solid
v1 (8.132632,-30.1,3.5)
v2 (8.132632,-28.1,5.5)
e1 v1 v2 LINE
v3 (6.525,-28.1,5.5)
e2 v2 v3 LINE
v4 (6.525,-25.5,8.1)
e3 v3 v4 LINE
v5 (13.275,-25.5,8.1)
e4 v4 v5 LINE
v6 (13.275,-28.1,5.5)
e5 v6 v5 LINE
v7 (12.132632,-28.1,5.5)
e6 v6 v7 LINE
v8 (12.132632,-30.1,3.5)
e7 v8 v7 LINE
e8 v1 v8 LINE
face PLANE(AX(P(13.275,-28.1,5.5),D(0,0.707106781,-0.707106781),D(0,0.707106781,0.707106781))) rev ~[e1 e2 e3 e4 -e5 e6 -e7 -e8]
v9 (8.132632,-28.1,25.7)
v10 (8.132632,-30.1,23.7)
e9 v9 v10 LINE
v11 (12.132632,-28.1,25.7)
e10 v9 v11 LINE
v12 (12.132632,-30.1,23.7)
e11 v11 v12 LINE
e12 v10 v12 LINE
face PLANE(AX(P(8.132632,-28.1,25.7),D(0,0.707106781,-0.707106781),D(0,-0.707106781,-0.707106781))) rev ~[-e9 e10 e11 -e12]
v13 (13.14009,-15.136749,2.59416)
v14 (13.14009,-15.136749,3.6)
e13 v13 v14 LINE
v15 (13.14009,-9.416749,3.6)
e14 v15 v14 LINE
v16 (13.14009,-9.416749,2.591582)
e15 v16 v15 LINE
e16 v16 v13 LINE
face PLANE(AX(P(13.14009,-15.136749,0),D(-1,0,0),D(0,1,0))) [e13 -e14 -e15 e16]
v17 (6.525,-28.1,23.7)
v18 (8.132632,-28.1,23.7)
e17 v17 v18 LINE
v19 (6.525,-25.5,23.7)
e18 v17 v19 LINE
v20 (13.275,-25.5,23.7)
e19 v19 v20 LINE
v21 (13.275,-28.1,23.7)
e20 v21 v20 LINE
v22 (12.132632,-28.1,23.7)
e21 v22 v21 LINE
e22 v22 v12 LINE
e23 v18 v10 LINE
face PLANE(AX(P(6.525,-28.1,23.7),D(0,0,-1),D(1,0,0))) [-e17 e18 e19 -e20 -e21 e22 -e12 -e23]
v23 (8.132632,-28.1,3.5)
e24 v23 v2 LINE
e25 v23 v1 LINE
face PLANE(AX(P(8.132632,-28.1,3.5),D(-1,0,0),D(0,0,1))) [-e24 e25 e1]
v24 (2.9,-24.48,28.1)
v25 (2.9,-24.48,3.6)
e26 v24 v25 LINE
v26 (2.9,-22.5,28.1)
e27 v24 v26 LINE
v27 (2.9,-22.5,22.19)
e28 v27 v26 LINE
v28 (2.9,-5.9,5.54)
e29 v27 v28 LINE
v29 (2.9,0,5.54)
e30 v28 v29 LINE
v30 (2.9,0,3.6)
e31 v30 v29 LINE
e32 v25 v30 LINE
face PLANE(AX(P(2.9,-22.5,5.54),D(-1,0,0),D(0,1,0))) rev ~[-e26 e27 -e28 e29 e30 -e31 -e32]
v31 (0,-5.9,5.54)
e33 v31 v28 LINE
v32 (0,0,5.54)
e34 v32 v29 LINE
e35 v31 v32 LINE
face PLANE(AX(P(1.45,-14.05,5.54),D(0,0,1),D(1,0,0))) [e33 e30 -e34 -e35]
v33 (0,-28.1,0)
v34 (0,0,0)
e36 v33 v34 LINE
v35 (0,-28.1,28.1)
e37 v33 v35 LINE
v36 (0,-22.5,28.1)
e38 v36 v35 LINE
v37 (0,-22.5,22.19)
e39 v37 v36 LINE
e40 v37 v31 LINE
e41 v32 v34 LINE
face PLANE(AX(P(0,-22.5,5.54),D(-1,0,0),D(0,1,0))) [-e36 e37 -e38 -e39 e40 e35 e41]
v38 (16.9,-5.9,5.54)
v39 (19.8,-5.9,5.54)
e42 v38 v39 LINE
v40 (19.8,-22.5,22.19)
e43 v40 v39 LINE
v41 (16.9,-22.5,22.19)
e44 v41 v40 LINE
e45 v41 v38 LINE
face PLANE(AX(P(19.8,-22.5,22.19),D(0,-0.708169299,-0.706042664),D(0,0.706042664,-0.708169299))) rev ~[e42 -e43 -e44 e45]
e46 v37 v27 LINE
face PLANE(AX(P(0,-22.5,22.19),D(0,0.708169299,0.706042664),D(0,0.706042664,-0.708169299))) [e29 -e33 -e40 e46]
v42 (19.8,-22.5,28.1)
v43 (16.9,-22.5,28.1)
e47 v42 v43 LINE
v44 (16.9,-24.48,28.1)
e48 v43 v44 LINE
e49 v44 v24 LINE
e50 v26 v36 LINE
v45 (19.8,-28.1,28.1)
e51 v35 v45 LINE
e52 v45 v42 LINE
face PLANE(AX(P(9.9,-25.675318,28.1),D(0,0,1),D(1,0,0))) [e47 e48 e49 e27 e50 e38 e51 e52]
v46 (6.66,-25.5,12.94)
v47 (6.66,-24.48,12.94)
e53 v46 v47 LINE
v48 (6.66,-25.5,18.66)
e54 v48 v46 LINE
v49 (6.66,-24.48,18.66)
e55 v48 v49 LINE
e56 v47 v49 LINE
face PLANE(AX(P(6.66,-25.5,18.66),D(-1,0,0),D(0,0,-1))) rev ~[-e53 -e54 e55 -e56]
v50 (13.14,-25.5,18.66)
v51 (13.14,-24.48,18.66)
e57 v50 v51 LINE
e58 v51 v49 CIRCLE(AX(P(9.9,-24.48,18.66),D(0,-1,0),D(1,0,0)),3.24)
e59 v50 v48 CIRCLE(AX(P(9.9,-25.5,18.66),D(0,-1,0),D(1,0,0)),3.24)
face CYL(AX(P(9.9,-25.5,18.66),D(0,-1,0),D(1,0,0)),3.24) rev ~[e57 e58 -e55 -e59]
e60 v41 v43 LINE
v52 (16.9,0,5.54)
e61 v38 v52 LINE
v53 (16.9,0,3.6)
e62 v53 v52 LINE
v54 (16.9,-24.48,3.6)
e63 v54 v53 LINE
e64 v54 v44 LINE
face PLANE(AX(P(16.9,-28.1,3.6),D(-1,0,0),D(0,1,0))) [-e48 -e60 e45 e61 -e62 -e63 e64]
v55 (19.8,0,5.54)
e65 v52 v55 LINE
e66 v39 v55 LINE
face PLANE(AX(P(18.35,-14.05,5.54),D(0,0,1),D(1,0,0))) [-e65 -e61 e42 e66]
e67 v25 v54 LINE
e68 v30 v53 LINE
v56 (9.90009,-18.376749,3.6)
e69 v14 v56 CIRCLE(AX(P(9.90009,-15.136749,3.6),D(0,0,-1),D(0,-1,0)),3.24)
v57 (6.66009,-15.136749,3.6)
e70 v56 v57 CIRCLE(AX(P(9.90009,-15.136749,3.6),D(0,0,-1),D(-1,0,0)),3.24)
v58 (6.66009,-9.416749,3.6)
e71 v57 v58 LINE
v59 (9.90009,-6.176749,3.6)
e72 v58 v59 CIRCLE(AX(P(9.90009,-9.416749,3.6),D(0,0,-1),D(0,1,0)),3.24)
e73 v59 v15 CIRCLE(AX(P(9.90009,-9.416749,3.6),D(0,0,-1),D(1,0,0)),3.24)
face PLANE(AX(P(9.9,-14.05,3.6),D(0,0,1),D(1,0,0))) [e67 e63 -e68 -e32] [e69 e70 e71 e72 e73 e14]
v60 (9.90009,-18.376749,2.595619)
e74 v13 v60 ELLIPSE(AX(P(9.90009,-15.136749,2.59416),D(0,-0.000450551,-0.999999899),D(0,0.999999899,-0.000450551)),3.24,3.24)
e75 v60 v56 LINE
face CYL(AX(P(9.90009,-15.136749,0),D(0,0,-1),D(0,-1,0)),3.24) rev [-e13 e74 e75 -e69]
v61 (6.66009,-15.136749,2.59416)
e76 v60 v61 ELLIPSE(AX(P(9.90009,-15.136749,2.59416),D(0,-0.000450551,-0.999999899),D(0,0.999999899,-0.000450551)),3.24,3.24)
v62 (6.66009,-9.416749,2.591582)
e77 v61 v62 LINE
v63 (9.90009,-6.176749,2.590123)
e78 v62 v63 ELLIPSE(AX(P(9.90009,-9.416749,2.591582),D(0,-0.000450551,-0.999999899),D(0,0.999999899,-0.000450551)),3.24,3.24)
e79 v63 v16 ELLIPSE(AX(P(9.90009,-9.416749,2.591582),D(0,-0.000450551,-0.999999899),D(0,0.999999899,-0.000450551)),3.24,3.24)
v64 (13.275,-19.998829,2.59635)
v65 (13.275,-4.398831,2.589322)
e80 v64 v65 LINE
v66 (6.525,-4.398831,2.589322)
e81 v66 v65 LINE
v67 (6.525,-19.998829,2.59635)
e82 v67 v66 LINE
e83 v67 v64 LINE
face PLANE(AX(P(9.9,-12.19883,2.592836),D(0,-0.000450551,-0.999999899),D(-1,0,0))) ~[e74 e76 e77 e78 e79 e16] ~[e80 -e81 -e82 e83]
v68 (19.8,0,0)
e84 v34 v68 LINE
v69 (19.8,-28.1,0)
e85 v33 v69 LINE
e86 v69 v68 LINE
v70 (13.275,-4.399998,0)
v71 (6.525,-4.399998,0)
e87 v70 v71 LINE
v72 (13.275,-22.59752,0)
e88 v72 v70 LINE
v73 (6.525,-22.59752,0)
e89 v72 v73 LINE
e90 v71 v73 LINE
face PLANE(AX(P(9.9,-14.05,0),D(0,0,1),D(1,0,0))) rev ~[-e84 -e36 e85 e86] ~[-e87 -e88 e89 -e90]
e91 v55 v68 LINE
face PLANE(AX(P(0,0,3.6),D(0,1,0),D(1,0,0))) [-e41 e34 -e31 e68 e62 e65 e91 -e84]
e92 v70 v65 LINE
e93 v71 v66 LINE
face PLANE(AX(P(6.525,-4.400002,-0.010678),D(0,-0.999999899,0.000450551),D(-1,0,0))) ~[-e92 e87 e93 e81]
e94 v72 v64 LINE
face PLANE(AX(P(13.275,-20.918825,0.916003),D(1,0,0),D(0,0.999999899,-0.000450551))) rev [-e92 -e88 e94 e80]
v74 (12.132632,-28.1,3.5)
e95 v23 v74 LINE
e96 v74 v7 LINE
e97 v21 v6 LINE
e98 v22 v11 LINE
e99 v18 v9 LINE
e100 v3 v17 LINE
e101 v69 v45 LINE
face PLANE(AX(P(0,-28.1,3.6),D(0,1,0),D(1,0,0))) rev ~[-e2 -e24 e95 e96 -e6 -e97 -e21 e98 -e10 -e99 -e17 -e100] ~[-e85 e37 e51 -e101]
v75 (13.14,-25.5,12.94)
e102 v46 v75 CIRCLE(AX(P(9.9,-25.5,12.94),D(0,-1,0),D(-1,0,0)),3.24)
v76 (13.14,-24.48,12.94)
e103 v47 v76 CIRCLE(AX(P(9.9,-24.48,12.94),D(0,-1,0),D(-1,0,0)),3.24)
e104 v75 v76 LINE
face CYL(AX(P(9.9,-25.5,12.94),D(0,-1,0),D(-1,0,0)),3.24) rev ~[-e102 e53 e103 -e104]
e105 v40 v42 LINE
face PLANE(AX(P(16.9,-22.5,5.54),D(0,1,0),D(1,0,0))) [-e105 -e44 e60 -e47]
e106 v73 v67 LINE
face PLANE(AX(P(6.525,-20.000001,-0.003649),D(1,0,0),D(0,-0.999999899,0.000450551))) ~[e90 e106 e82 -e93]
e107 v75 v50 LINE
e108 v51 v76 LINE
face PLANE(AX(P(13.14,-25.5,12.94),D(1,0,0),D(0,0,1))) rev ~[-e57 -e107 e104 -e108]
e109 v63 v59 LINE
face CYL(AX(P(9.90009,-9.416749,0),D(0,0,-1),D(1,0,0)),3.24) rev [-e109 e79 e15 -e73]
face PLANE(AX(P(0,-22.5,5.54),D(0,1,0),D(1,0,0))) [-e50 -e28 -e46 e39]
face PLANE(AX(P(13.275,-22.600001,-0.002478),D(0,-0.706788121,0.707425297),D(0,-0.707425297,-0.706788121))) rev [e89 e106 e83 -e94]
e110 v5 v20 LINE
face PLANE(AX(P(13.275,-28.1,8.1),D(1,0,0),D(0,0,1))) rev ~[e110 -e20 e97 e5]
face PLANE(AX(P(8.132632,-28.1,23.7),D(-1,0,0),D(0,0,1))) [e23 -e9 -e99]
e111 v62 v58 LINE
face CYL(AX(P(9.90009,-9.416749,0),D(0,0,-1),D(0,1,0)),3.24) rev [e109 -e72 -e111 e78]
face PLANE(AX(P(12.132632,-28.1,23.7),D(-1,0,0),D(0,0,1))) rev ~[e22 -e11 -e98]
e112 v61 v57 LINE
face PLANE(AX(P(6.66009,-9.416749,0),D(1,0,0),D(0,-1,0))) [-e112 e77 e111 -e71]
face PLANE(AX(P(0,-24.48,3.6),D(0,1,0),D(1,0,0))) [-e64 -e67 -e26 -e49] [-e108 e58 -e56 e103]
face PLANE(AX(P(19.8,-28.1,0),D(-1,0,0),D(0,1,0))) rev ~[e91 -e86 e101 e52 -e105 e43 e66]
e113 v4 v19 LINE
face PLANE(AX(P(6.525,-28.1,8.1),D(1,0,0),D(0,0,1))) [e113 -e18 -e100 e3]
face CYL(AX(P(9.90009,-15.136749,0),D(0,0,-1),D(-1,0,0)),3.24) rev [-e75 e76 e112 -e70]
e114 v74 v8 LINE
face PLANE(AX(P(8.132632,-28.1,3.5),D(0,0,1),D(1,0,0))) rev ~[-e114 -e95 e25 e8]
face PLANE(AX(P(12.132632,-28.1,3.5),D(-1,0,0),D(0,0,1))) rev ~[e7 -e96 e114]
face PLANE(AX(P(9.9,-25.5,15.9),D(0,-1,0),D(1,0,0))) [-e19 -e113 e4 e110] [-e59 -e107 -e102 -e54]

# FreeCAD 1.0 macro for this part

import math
import FreeCAD as App
import Part
import Sketcher

V = App.Vector
Q = App.Units.Quantity


def add_polygon(sketch, points):
    """Adds a closed chain of lines whose ends are joined by coincident constraints."""
    first, n = sketch.GeometryCount, len(points)
    for a, b in zip(points, points[1:] + points[:1]):
        sketch.addGeometry(Part.LineSegment(App.Vector(*a, 0), App.Vector(*b, 0)), False)
    for i in range(n):
        sketch.addConstraint(Sketcher.Constraint("Coincident", first + i, 2, first + (i + 1) % n, 1))

doc = App.newDocument("Part")
body = doc.addObject("PartDesign::Body", "Body")

sketch1 = body.newObject("Sketcher::SketchObject", "Sketch")
sketch1.AttachmentSupport = (doc.getObject("XY_Plane"), [""])
sketch1.MapMode = "FlatFace"
add_polygon(sketch1, [(0, 0), (0, -28), (20, -28), (20, 0)])
sketch1.addConstraint([
    Sketcher.Constraint("Vertical", 0),
    Sketcher.Constraint("Horizontal", 1),
    Sketcher.Constraint("Vertical", 2),
    Sketcher.Constraint("Horizontal", 3),
    Sketcher.Constraint("Coincident", 3, 2, -1, 1),
    Sketcher.Constraint("DistanceX", 1, 1, 1, 2, Q("19.8 mm")),
    Sketcher.Constraint("DistanceY", 0, 2, 0, 1, Q("28.1 mm")),
])
pad1 = body.newObject("PartDesign::Pad", "Pad")
pad1.Profile = sketch1
pad1.Length = 3.6

sketch2 = body.newObject("Sketcher::SketchObject", "Sketch001")
sketch2.AttachmentSupport = (doc.getObject("XY_Plane"), [""])
sketch2.MapMode = "FlatFace"
sketch2.AttachmentOffset = App.Placement(V(0, 0, 3.6), App.Rotation())
add_polygon(sketch2, [(0, 0), (0, -28.1), (2.9, -28.1), (2.9, 0)])
add_polygon(sketch2, [(16.9, 0), (16.9, -28.1), (19.8, -28.1), (19.8, 0)])
sketch2.addConstraint([
    Sketcher.Constraint("Vertical", 0),
    Sketcher.Constraint("Horizontal", 1),
    Sketcher.Constraint("Vertical", 2),
    Sketcher.Constraint("Horizontal", 3),
    Sketcher.Constraint("Vertical", 4),
    Sketcher.Constraint("Horizontal", 5),
    Sketcher.Constraint("Vertical", 6),
    Sketcher.Constraint("Horizontal", 7),
    Sketcher.Constraint("Coincident", 3, 2, -1, 1),
    Sketcher.Constraint("PointOnObject", 6, 2, -1),
    Sketcher.Constraint("Horizontal", 1, 2, 4, 2),
    Sketcher.Constraint("Equal", 3, 5),
    Sketcher.Constraint("DistanceX", 1, 1, 1, 2, Q("2.9 mm")),
    Sketcher.Constraint("DistanceY", 0, 2, 0, 1, Q("28.1 mm")),
    Sketcher.Constraint("DistanceX", 1, 2, 4, 2, Q("14 mm")),
])
pad2 = body.newObject("PartDesign::Pad", "Pad001")
pad2.Profile = sketch2
pad2.Length = 1.94

sketch3 = body.newObject("Sketcher::SketchObject", "Sketch002")
sketch3.AttachmentSupport = (doc.getObject("XY_Plane"), [""])
sketch3.MapMode = "FlatFace"
sketch3.AttachmentOffset = App.Placement(V(0, 0, 3.6), App.Rotation())
add_polygon(sketch3, [(0, -24.5), (0, -28.1), (19.8, -28.1), (19.8, -24.5)])
sketch3.addConstraint([
    Sketcher.Constraint("Vertical", 0),
    Sketcher.Constraint("Horizontal", 1),
    Sketcher.Constraint("Vertical", 2),
    Sketcher.Constraint("Horizontal", 3),
    Sketcher.Constraint("PointOnObject", 0, 2, -2),
    Sketcher.Constraint("DistanceX", 1, 1, 1, 2, Q("19.8 mm")),
    Sketcher.Constraint("DistanceY", 0, 2, 0, 1, Q("3.62 mm")),
    Sketcher.Constraint("DistanceY", 0, 2, -1, 1, Q("28.1 mm")),
])
pad3 = body.newObject("PartDesign::Pad", "Pad002")
pad3.Profile = sketch3
pad3.Length = 27.8

sketch4 = body.newObject("Sketcher::SketchObject", "Sketch003")
sketch4.AttachmentSupport = (doc.getObject("XY_Plane"), [""])
sketch4.MapMode = "FlatFace"
sketch4.AttachmentOffset = App.Placement(V(0, 0, 5.54), App.Rotation())
add_polygon(sketch4, [(0, -22.5), (0, -28.1), (2.9, -28.1), (2.9, -22.5)])
add_polygon(sketch4, [(16.9, -22.5), (16.9, -28.1), (19.8, -28.1), (19.8, -22.5)])
sketch4.addConstraint([
    Sketcher.Constraint("Vertical", 0),
    Sketcher.Constraint("Horizontal", 1),
    Sketcher.Constraint("Vertical", 2),
    Sketcher.Constraint("Horizontal", 3),
    Sketcher.Constraint("Vertical", 4),
    Sketcher.Constraint("Horizontal", 5),
    Sketcher.Constraint("Vertical", 6),
    Sketcher.Constraint("Horizontal", 7),
    Sketcher.Constraint("PointOnObject", 0, 2, -2),
    Sketcher.Constraint("Horizontal", 1, 2, 4, 2),
    Sketcher.Constraint("Horizontal", 3, 2, 6, 2),
    Sketcher.Constraint("Equal", 3, 5),
    Sketcher.Constraint("DistanceX", 1, 1, 1, 2, Q("2.9 mm")),
    Sketcher.Constraint("DistanceY", 0, 2, 0, 1, Q("5.6 mm")),
    Sketcher.Constraint("DistanceX", 1, 2, 4, 2, Q("14 mm")),
    Sketcher.Constraint("DistanceY", 0, 2, -1, 1, Q("28.1 mm")),
])
pad4 = body.newObject("PartDesign::Pad", "Pad003")
pad4.Profile = sketch4
pad4.Length = 25.86

sketch5 = body.newObject("Sketcher::SketchObject", "Sketch004")
sketch5.AttachmentSupport = (doc.getObject("XY_Plane"), [""])
sketch5.MapMode = "FlatFace"
sketch5.AttachmentOffset = App.Placement(V(0, 0, 5.54), App.Rotation())
add_polygon(sketch5, [(0, -5.9), (0, -22.5), (2.9, -22.5), (2.9, -5.9)])
add_polygon(sketch5, [(16.9, -5.9), (16.9, -22.5), (19.8, -22.5), (19.8, -5.9)])
sketch5.addConstraint([
    Sketcher.Constraint("Vertical", 0),
    Sketcher.Constraint("Horizontal", 1),
    Sketcher.Constraint("Vertical", 2),
    Sketcher.Constraint("Horizontal", 3),
    Sketcher.Constraint("Vertical", 4),
    Sketcher.Constraint("Horizontal", 5),
    Sketcher.Constraint("Vertical", 6),
    Sketcher.Constraint("Horizontal", 7),
    Sketcher.Constraint("PointOnObject", 0, 2, -2),
    Sketcher.Constraint("Horizontal", 1, 2, 4, 2),
    Sketcher.Constraint("Horizontal", 3, 2, 6, 2),
    Sketcher.Constraint("Equal", 3, 5),
    Sketcher.Constraint("DistanceX", 1, 1, 1, 2, Q("2.9 mm")),
    Sketcher.Constraint("DistanceY", 0, 2, 0, 1, Q("16.6 mm")),
    Sketcher.Constraint("DistanceX", 1, 2, 4, 2, Q("14 mm")),
    Sketcher.Constraint("DistanceY", 0, 2, -1, 1, Q("22.5 mm")),
])
pad5 = body.newObject("PartDesign::Pad", "Pad004")
pad5.Profile = sketch5
pad5.Length = 16.65

sketch6 = body.newObject("Sketcher::SketchObject", "Sketch005")
sketch6.AttachmentSupport = (doc.getObject("XY_Plane"), [""])
sketch6.MapMode = "FlatFace"
sketch6.AttachmentOffset = App.Placement(V(0, 0, 31.4), App.Rotation())
add_polygon(sketch6, [(0, -22.5), (0, -28.1), (19.8, -28.1), (19.8, -22.5), (16.9, -22.5), (16.9, -24.5), (2.9, -24.5), (2.9, -22.5)])
sketch6.addConstraint([
    Sketcher.Constraint("Vertical", 0),
    Sketcher.Constraint("Horizontal", 1),
    Sketcher.Constraint("Vertical", 2),
    Sketcher.Constraint("Horizontal", 3),
    Sketcher.Constraint("Vertical", 4),
    Sketcher.Constraint("Horizontal", 5),
    Sketcher.Constraint("Vertical", 6),
    Sketcher.Constraint("Horizontal", 7),
    Sketcher.Constraint("PointOnObject", 0, 2, -2),
    Sketcher.Constraint("Horizontal", 3, 2, 6, 2),
    Sketcher.Constraint("Equal", 3, 7),
    Sketcher.Constraint("DistanceX", 5, 2, 5, 1, Q("14 mm")),
    Sketcher.Constraint("DistanceX", 1, 1, 1, 2, Q("19.8 mm")),
    Sketcher.Constraint("DistanceY", 0, 2, 0, 1, Q("5.6 mm")),
    Sketcher.Constraint("DistanceY", 4, 2, 4, 1, Q("1.98 mm")),
    Sketcher.Constraint("DistanceY", 0, 2, -1, 1, Q("28.1 mm")),
])
pocket1 = body.newObject("PartDesign::Pocket", "Pocket")
pocket1.Profile = sketch6
pocket1.Length = 3.3

sketch7 = body.newObject("Sketcher::SketchObject", "Sketch006")
sketch7.AttachmentSupport = (doc.getObject("YZ_Plane"), [""])
sketch7.MapMode = "FlatFace"
add_polygon(sketch7, [(-6, 22), (-6, 6), (-22, 22)])
sketch7.addConstraint([
    Sketcher.Constraint("Vertical", 0),
    Sketcher.Constraint("Horizontal", 2),
    Sketcher.Constraint("DistanceX", 2, 1, 2, 2, Q("16.6 mm")),
    Sketcher.Constraint("DistanceY", 0, 2, 0, 1, Q("16.65 mm")),
    Sketcher.Constraint("DistanceX", 0, 2, -1, 1, Q("5.9 mm")),
    Sketcher.Constraint("DistanceY", -1, 1, 0, 2, Q("5.54 mm")),
])
pocket2 = body.newObject("PartDesign::Pocket", "Pocket001")
pocket2.Profile = sketch7
pocket2.Length = 2.9
pocket2.Reversed = True

sketch8 = body.newObject("Sketcher::SketchObject", "Sketch007")
sketch8.AttachmentSupport = (doc.getObject("YZ_Plane"), [""])
sketch8.MapMode = "FlatFace"
sketch8.AttachmentOffset = App.Placement(V(0, 0, 19.8), App.Rotation())
add_polygon(sketch8, [(-6, 6), (-6, 22), (-22, 22)])
sketch8.addConstraint([
    Sketcher.Constraint("Vertical", 0),
    Sketcher.Constraint("Horizontal", 1),
    Sketcher.Constraint("DistanceX", 1, 2, 1, 1, Q("16.6 mm")),
    Sketcher.Constraint("DistanceY", 0, 1, 0, 2, Q("16.65 mm")),
    Sketcher.Constraint("DistanceX", 0, 2, -1, 1, Q("5.9 mm")),
    Sketcher.Constraint("DistanceY", -1, 1, 0, 2, Q("22.19 mm")),
])
pocket3 = body.newObject("PartDesign::Pocket", "Pocket002")
pocket3.Profile = sketch8
pocket3.Length = 2.9

sketch9 = body.newObject("Sketcher::SketchObject", "Sketch008")
sketch9.AttachmentSupport = (doc.getObject("XZ_Plane"), [""])
sketch9.MapMode = "FlatFace"
sketch9.AttachmentOffset = App.Placement(V(0, 0, 28.1), App.Rotation())
add_polygon(sketch9, [(7, 24), (7, 8), (13, 8), (13, 24)])
sketch9.addConstraint([
    Sketcher.Constraint("Vertical", 0),
    Sketcher.Constraint("Horizontal", 1),
    Sketcher.Constraint("Vertical", 2),
    Sketcher.Constraint("Horizontal", 3),
    Sketcher.Constraint("DistanceY", 0, 2, 0, 1, Q("15.6 mm")),
    Sketcher.Constraint("DistanceX", 1, 1, 1, 2, Q("6.75 mm")),
    Sketcher.Constraint("DistanceY", -1, 1, 0, 2, Q("8.1 mm")),
    Sketcher.Constraint("DistanceX", -1, 1, 0, 2, Q("6.525 mm")),
])
pocket4 = body.newObject("PartDesign::Pocket", "Pocket003")
pocket4.Profile = sketch9
pocket4.Length = 2.6

sketch10 = body.newObject("Sketcher::SketchObject", "Sketch009")
sketch10.AttachmentSupport = (doc.getObject("YZ_Plane"), [""])
sketch10.MapMode = "FlatFace"
sketch10.AttachmentOffset = App.Placement(V(0, 0, 13.275), App.Rotation())
add_polygon(sketch10, [(-28.1, 5.5), (-28.1, 8.1), (-25.5, 8.1)])
sketch10.addConstraint([
    Sketcher.Constraint("Vertical", 0),
    Sketcher.Constraint("Horizontal", 1),
    Sketcher.Constraint("Equal", 1, 0),
    Sketcher.Constraint("DistanceX", 1, 1, 1, 2, Q("2.6 mm")),
    Sketcher.Constraint("DistanceX", 0, 2, -1, 1, Q("28.1 mm")),
    Sketcher.Constraint("DistanceY", -1, 1, 0, 2, Q("8.1 mm")),
])
pocket5 = body.newObject("PartDesign::Pocket", "Pocket004")
pocket5.Profile = sketch10
pocket5.Length = 6.75
doc.recompute()

datumplane = body.newObject("PartDesign::Plane", "DatumPlane")
datumplane.Placement = App.Placement(V(0, -14.04367, 14.049999), App.Rotation(V(0, 0.707266057, 0.706947469), V(-1, 0, 0), V(0, -0.706947469, 0.707266057), "ZXY"))
mirrored = body.newObject("PartDesign::Mirrored", "Mirrored")
mirrored.Originals = [pocket4, pocket5]
mirrored.MirrorPlane = (datumplane, [""])
body.Tip = mirrored

sketch11 = body.newObject("Sketcher::SketchObject", "Sketch010")
sketch11.AttachmentSupport = (doc.getObject("XZ_Plane"), [""])
sketch11.MapMode = "FlatFace"
sketch11.AttachmentOffset = App.Placement(V(0, 0, 25.5), App.Rotation())
sketch11.addGeometry([
    Part.LineSegment(V(6.7, 18.7, 0), V(6.7, 12.9, 0)),
    Part.ArcOfCircle(Part.Circle(V(9.9, 12.9, 0), V(0, 0, 1), 3.2), math.radians(180), math.radians(360)),
    Part.LineSegment(V(13.1, 12.9, 0), V(13.1, 18.7, 0)),
    Part.ArcOfCircle(Part.Circle(V(9.9, 18.7, 0), V(0, 0, 1), 3.2), math.radians(0), math.radians(180)),
], False)
sketch11.addConstraint([
    Sketcher.Constraint("Tangent", 0, 2, 1, 1),
    Sketcher.Constraint("Tangent", 1, 2, 2, 1),
    Sketcher.Constraint("Tangent", 2, 2, 3, 1),
    Sketcher.Constraint("Tangent", 3, 2, 0, 1),
    Sketcher.Constraint("Vertical", 0),
    Sketcher.Constraint("Vertical", 2),
    Sketcher.Constraint("Radius", 1, Q("3.24 mm")),
    Sketcher.Constraint("DistanceY", 0, 2, 0, 1, Q("5.72 mm")),
    Sketcher.Constraint("DistanceX", -1, 1, 1, 3, Q("9.9 mm")),
    Sketcher.Constraint("DistanceY", -1, 1, 1, 3, Q("12.94 mm")),
])
pocket6 = body.newObject("PartDesign::Pocket", "Pocket005")
pocket6.Profile = sketch11
pocket6.Length = 5

sketch12 = body.newObject("Sketcher::SketchObject", "Sketch011")
sketch12.AttachmentSupport = (doc.getObject("XZ_Plane"), [""])
sketch12.MapMode = "FlatFace"
sketch12.AttachmentOffset = App.Placement(V(0, 0, 28.1), App.Rotation())
add_polygon(sketch12, [(8.1, 5.5), (8.1, 3.5), (12.1, 3.5), (12.1, 5.5)])
add_polygon(sketch12, [(8.1, 25.7), (8.1, 23.7), (12.1, 23.7), (12.1, 25.7)])
sketch12.addConstraint([
    Sketcher.Constraint("Vertical", 0),
    Sketcher.Constraint("Horizontal", 1),
    Sketcher.Constraint("Vertical", 2),
    Sketcher.Constraint("Horizontal", 3),
    Sketcher.Constraint("Vertical", 4),
    Sketcher.Constraint("Horizontal", 5),
    Sketcher.Constraint("Vertical", 6),
    Sketcher.Constraint("Horizontal", 7),
    Sketcher.Constraint("Vertical", 3, 2, 4, 2),
    Sketcher.Constraint("Vertical", 2, 2, 5, 2),
    Sketcher.Constraint("Equal", 2, 4),
    Sketcher.Constraint("DistanceX", 1, 1, 1, 2, Q("4 mm")),
    Sketcher.Constraint("DistanceY", 0, 2, 0, 1, Q("2 mm")),
    Sketcher.Constraint("DistanceY", -1, 1, 0, 2, Q("3.5 mm")),
    Sketcher.Constraint("DistanceY", -1, 1, 4, 2, Q("23.7 mm")),
    Sketcher.Constraint("DistanceX", -1, 1, 0, 2, Q("8.132632 mm")),
])
pad6 = body.newObject("PartDesign::Pad", "Pad005")
pad6.Profile = sketch12
pad6.Length = 2

sketch13 = body.newObject("Sketcher::SketchObject", "Sketch012")
sketch13.AttachmentSupport = (doc.getObject("YZ_Plane"), [""])
sketch13.MapMode = "FlatFace"
sketch13.AttachmentOffset = App.Placement(V(0, 0, 8.132632), App.Rotation())
add_polygon(sketch13, [(-30.1, 5.5), (-28.1, 5.5), (-30.1, 3.5)])
add_polygon(sketch13, [(-28.1, 25.7), (-30.1, 23.7), (-30.1, 25.7)])
sketch13.addConstraint([
    Sketcher.Constraint("Horizontal", 0),
    Sketcher.Constraint("Vertical", 2),
    Sketcher.Constraint("Vertical", 4),
    Sketcher.Constraint("Horizontal", 5),
    Sketcher.Constraint("Parallel", 1, 3),
    Sketcher.Constraint("Vertical", 2, 2, 3, 2),
    Sketcher.Constraint("Vertical", 0, 2, 5, 2),
    Sketcher.Constraint("Equal", 5, 2),
    Sketcher.Constraint("DistanceX", 0, 1, 0, 2, Q("2 mm")),
    Sketcher.Constraint("DistanceX", 0, 2, -1, 1, Q("28.1 mm")),
    Sketcher.Constraint("DistanceY", -1, 1, 0, 2, Q("5.5 mm")),
    Sketcher.Constraint("DistanceY", -1, 1, 3, 2, Q("23.7 mm")),
])
pocket7 = body.newObject("PartDesign::Pocket", "Pocket006")
pocket7.Profile = sketch13
pocket7.Length = 10
pocket7.Reversed = True

sketch14 = body.newObject("Sketcher::SketchObject", "Sketch013")
sketch14.AttachmentSupport = (doc.getObject("XY_Plane"), [""])
sketch14.MapMode = "FlatFace"
sketch14.addGeometry([
    Part.ArcOfCircle(Part.Circle(V(9.9, -9.4, 0), V(0, 0, 1), 3.2), math.radians(0), math.radians(90)),
    Part.ArcOfCircle(Part.Circle(V(9.9, -9.4, 0), V(0, 0, 1), 3.2), math.radians(90), math.radians(180)),
    Part.LineSegment(V(6.7, -9.4, 0), V(6.7, -15.1, 0)),
    Part.ArcOfCircle(Part.Circle(V(9.9, -15.1, 0), V(0, 0, 1), 3.2), math.radians(180), math.radians(270)),
    Part.ArcOfCircle(Part.Circle(V(9.9, -15.1, 0), V(0, 0, 1), 3.2), math.radians(-90), math.radians(0)),
    Part.LineSegment(V(13.1, -15.1, 0), V(13.1, -9.4, 0)),
], False)
sketch14.addConstraint([
    Sketcher.Constraint("Tangent", 0, 2, 1, 1),
    Sketcher.Constraint("Tangent", 1, 2, 2, 1),
    Sketcher.Constraint("Tangent", 2, 2, 3, 1),
    Sketcher.Constraint("Tangent", 3, 2, 4, 1),
    Sketcher.Constraint("Tangent", 4, 2, 5, 1),
    Sketcher.Constraint("Tangent", 5, 2, 0, 1),
    Sketcher.Constraint("Vertical", 2),
    Sketcher.Constraint("Vertical", 5),
    Sketcher.Constraint("Equal", 0, 1),
    Sketcher.Constraint("Equal", 1, 3),
    Sketcher.Constraint("Vertical", 4, 3, 0, 2),
    Sketcher.Constraint("Vertical", 0, 2, 3, 2),
    Sketcher.Constraint("Radius", 0, Q("3.24 mm")),
    Sketcher.Constraint("DistanceY", 2, 2, 2, 1, Q("5.72 mm")),
    Sketcher.Constraint("DistanceX", -1, 1, 0, 3, Q("9.90009 mm")),
    Sketcher.Constraint("DistanceY", 0, 3, -1, 1, Q("9.416749 mm")),
])
pocket8 = body.newObject("PartDesign::Pocket", "Pocket007")
pocket8.Profile = sketch14
pocket8.Length = 10
pocket8.Reversed = True

doc.recompute()
